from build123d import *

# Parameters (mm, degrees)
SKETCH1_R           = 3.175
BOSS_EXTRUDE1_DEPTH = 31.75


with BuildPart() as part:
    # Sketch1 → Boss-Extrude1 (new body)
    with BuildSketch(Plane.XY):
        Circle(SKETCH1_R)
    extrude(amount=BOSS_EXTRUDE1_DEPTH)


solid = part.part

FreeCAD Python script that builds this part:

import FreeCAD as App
import Part
import Sketcher
from FreeCAD import Vector
Q = App.Units.Quantity

doc = App.newDocument("Part")
body = doc.addObject("PartDesign::Body", "Body")

sketch1 = body.newObject("Sketcher::SketchObject", "Sketch")
sketch1.AttachmentSupport = (doc.getObject("XY_Plane"), [""])
sketch1.MapMode = "FlatFace"
sketch1.addGeometry(Part.Circle(Vector(0, 0, 0), Vector(0, 0, 1), 3.2), False)
sketch1.addConstraint(Sketcher.Constraint("Coincident", 0, 3, -1, 1))
sketch1.addConstraint(Sketcher.Constraint("Diameter", 0, Q("0.25 in")))
pad1 = body.newObject("PartDesign::Pad", "Pad")
pad1.Profile = sketch1
pad1.Length = Q("1.25 in")

doc.recompute()
